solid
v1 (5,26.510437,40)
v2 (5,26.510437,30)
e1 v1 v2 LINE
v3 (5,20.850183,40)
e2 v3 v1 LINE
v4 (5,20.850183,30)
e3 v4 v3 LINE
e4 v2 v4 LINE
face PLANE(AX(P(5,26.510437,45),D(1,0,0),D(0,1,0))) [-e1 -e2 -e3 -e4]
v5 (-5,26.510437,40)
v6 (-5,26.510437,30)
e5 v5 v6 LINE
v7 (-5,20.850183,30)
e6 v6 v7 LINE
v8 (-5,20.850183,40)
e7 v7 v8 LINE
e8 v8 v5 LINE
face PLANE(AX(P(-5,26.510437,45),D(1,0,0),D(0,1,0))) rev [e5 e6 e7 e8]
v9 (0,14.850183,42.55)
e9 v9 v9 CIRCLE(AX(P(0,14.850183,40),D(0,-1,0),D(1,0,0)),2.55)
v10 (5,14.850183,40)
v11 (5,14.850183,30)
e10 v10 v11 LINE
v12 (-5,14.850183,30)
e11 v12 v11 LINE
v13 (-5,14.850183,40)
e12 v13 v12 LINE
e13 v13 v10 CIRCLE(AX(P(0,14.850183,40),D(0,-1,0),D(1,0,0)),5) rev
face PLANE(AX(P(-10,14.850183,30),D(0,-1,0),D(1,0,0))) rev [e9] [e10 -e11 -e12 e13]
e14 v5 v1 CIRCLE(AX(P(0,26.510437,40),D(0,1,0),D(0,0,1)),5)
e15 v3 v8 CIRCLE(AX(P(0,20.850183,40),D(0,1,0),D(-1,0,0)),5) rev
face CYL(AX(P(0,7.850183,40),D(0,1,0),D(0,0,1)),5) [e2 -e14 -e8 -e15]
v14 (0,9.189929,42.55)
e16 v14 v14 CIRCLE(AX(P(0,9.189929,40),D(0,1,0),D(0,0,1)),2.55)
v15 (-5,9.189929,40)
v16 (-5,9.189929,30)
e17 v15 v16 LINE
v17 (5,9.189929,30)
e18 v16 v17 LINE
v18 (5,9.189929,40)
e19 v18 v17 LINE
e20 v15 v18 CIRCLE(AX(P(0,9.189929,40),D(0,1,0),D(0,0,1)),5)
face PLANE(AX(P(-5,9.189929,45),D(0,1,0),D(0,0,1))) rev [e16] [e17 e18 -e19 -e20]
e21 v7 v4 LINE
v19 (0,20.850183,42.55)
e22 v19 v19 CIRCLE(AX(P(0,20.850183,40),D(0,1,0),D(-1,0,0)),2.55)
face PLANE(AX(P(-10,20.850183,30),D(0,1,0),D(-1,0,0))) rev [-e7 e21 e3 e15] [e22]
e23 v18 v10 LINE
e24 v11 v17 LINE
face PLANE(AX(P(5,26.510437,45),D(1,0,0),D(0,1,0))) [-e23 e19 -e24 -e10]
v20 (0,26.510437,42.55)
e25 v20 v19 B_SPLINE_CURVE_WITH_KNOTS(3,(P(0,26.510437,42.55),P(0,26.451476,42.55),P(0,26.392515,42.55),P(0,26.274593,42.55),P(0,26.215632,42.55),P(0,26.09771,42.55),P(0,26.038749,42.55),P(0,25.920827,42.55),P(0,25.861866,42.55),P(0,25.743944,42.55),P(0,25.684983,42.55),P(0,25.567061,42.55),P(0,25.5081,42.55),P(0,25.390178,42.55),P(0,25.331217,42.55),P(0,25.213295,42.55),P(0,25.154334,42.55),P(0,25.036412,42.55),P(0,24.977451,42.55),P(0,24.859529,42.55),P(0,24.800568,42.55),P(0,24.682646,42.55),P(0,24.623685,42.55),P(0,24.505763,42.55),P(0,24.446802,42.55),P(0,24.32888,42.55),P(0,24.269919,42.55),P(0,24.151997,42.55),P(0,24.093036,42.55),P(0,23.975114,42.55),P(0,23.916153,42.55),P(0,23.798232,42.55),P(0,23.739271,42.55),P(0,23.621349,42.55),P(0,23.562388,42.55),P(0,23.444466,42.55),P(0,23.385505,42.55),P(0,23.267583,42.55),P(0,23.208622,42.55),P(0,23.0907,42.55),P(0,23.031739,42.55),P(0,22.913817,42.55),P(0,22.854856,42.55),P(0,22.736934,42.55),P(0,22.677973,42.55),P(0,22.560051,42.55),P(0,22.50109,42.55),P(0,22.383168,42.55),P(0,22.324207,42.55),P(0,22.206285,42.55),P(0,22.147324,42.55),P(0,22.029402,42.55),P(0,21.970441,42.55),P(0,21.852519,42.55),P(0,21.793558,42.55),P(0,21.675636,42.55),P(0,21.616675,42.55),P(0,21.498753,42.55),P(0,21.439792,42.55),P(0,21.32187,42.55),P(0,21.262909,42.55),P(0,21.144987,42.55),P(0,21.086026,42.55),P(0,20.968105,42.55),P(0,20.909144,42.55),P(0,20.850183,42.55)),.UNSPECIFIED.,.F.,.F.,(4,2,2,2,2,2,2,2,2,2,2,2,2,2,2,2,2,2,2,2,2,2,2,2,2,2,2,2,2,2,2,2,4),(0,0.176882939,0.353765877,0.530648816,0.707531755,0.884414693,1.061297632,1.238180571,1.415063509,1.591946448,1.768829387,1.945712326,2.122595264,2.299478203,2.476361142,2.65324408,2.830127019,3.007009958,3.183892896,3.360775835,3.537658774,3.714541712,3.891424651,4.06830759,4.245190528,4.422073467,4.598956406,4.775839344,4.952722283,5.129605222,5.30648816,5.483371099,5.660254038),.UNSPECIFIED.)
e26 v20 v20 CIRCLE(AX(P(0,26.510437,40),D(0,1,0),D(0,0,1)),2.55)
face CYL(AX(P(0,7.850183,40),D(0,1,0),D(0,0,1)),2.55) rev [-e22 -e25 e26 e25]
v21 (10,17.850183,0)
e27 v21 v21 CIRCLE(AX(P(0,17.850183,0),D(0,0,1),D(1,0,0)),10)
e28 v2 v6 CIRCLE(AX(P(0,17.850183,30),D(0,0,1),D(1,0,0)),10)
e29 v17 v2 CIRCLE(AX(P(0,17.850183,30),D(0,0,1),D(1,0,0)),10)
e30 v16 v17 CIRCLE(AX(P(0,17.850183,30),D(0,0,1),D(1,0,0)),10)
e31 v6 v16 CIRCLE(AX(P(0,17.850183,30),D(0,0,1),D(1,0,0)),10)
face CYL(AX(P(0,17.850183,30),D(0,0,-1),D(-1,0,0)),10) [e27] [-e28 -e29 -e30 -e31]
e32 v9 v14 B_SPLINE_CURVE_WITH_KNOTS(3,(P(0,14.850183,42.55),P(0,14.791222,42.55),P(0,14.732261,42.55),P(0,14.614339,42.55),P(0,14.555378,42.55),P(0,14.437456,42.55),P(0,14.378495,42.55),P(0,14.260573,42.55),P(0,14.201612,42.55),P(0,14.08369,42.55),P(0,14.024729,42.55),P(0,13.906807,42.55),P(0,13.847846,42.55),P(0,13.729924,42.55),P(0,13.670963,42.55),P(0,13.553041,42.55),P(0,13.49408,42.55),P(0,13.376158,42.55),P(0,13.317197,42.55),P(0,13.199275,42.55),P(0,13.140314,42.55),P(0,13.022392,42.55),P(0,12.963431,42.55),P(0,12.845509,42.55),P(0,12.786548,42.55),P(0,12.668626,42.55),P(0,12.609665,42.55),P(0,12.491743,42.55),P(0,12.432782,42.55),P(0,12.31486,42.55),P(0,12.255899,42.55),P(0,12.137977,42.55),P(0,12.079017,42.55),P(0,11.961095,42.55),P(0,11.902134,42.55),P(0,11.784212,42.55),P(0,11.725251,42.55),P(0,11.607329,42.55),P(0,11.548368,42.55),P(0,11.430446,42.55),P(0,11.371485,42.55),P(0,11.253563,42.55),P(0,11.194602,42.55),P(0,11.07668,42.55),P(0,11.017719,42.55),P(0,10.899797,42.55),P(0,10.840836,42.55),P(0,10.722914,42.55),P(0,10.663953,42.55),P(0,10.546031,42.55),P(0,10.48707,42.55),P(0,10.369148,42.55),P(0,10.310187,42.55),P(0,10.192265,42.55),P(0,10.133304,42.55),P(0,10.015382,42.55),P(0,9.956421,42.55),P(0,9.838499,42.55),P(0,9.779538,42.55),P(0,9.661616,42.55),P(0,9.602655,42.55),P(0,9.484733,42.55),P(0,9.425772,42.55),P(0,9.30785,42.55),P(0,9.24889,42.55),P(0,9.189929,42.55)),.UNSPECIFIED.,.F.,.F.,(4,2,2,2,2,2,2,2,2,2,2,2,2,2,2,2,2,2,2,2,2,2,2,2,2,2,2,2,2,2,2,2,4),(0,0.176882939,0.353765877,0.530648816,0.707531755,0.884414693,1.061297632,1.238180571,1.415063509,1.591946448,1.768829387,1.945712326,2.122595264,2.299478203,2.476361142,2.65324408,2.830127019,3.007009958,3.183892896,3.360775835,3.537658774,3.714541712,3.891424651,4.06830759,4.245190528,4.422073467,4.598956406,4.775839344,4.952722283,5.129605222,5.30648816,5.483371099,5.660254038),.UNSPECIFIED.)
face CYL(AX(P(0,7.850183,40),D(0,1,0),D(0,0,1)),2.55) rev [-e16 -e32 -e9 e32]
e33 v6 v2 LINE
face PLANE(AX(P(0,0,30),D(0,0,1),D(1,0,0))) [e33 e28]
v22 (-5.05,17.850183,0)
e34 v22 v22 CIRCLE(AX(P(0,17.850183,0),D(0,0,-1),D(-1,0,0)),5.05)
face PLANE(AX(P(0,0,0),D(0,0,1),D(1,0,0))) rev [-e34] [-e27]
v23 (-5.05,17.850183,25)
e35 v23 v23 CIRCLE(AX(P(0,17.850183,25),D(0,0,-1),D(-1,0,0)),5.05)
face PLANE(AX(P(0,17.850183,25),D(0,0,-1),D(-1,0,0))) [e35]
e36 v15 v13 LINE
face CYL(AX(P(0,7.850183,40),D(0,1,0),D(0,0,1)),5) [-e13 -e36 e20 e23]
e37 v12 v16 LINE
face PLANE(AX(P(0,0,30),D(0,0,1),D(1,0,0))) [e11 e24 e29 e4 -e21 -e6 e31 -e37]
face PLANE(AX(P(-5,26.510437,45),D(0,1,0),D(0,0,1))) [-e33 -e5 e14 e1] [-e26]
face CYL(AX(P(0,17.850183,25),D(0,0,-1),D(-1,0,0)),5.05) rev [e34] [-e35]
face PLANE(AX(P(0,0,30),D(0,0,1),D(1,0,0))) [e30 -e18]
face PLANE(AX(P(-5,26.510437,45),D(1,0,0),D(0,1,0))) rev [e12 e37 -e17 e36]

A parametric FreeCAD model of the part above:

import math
import FreeCAD as App
import Part
import Sketcher
from FreeCAD import Vector

doc = App.newDocument("Part")
body = doc.addObject("PartDesign::Body", "Body")

# Sketch on XY plane
sketch1 = body.newObject("Sketcher::SketchObject", "Sketch")
sketch1.AttachmentSupport = (doc.getObject("XY_Plane"), [""])
sketch1.MapMode = "FlatFace"
sketch1.addGeometry(Part.Circle(Vector(0, 17.850183, 0), Vector(0, 0, 1), 10), False)
sketch1.addConstraint([
    Sketcher.Constraint("PointOnObject", 0, 3, -2),
    Sketcher.Constraint("Diameter", 0, 20.0),
    Sketcher.Constraint("DistanceY", -1, 1, 0, 3, 17.850183),
])
pad1 = body.newObject("PartDesign::Pad", "Pad")
pad1.Profile = sketch1
pad1.Length = 30

# Sketch on XY plane
sketch2 = body.newObject("Sketcher::SketchObject", "Sketch001")
sketch2.AttachmentSupport = (doc.getObject("XY_Plane"), [""])
sketch2.MapMode = "FlatFace"
sketch2.AttachmentOffset = App.Placement(Vector(0, 0, 30), App.Rotation())
sketch2.addGeometry([
    Part.LineSegment(Vector(-5, 26.510437, 0), Vector(-5, 9.189929, 0)),
    Part.LineSegment(Vector(-5, 9.189929, 0), Vector(5, 9.189929, 0)),
    Part.LineSegment(Vector(5, 9.189929, 0), Vector(5, 26.510437, 0)),
    Part.LineSegment(Vector(5, 26.510437, 0), Vector(-5, 26.510437, 0)),
], False)
sketch2.addConstraint([
    Sketcher.Constraint("Coincident", 0, 2, 1, 1),
    Sketcher.Constraint("Coincident", 1, 2, 2, 1),
    Sketcher.Constraint("Coincident", 2, 2, 3, 1),
    Sketcher.Constraint("Coincident", 3, 2, 0, 1),
    Sketcher.Constraint("Vertical", 0),
    Sketcher.Constraint("Horizontal", 1),
    Sketcher.Constraint("Vertical", 2),
    Sketcher.Constraint("Horizontal", 3),
    Sketcher.Constraint("DistanceX", 1, 1, 1, 2, 10.0),
    Sketcher.Constraint("DistanceX", 0, 2, -1, 1, 5.0),
    Sketcher.Constraint("DistanceY", 0, 2, 0, 1, 17.320508),
    Sketcher.Constraint("DistanceY", -1, 1, 0, 2, 9.189929),
])
pad2 = body.newObject("PartDesign::Pad", "Pad001")
pad2.Profile = sketch2
pad2.Length = 15

# Sketch on XZ plane
sketch3 = body.newObject("Sketcher::SketchObject", "Sketch002")
sketch3.AttachmentSupport = (doc.getObject("XZ_Plane"), [""])
sketch3.MapMode = "FlatFace"
sketch3.AttachmentOffset = App.Placement(Vector(0, 0, -26.510437), App.Rotation())
sketch3.addGeometry([
    Part.LineSegment(Vector(5, 45, 0), Vector(5, 40, 0)),
    Part.ArcOfCircle(Part.Circle(Vector(0, 40, 0), Vector(0, 0, 1), 5), math.radians(0), math.radians(90)),
    Part.LineSegment(Vector(0, 45, 0), Vector(5, 45, 0)),
], False)
sketch3.addConstraint([
    Sketcher.Constraint("Tangent", 0, 2, 1, 1),
    Sketcher.Constraint("Tangent", 1, 2, 2, 1),
    Sketcher.Constraint("Coincident", 2, 2, 0, 1),
    Sketcher.Constraint("Vertical", 0),
    Sketcher.Constraint("Horizontal", 2),
    Sketcher.Constraint("PointOnObject", 1, 3, -2),
    Sketcher.Constraint("Radius", 1, 5.0),
    Sketcher.Constraint("DistanceY", -1, 1, 1, 3, 40.0),
])
pocket1 = body.newObject("PartDesign::Pocket", "Pocket")
pocket1.Profile = sketch3
pocket1.Type = "ThroughAll"
pocket1.Reversed = True

# Sketch on XZ plane
sketch4 = body.newObject("Sketcher::SketchObject", "Sketch003")
sketch4.AttachmentSupport = (doc.getObject("XZ_Plane"), [""])
sketch4.MapMode = "FlatFace"
sketch4.AttachmentOffset = App.Placement(Vector(0, 0, -26.510437), App.Rotation())
sketch4.addGeometry([
    Part.ArcOfCircle(Part.Circle(Vector(0, 40, 0), Vector(0, 0, 1), 5), math.radians(90), math.radians(180)),
    Part.LineSegment(Vector(-5, 40, 0), Vector(-5, 45, 0)),
    Part.LineSegment(Vector(-5, 45, 0), Vector(0, 45, 0)),
], False)
sketch4.addConstraint([
    Sketcher.Constraint("Tangent", 0, 2, 1, 1),
    Sketcher.Constraint("Coincident", 1, 2, 2, 1),
    Sketcher.Constraint("Tangent", 2, 2, 0, 1),
    Sketcher.Constraint("Vertical", 1),
    Sketcher.Constraint("Horizontal", 2),
    Sketcher.Constraint("PointOnObject", 0, 3, -2),
    Sketcher.Constraint("Radius", 0, 5.0),
    Sketcher.Constraint("DistanceY", -1, 1, 0, 3, 40.0),
])
pocket2 = body.newObject("PartDesign::Pocket", "Pocket001")
pocket2.Profile = sketch4
pocket2.Type = "ThroughAll"
pocket2.Reversed = True

# Sketch on YZ plane
sketch5 = body.newObject("Sketcher::SketchObject", "Sketch004")
sketch5.AttachmentSupport = (doc.getObject("YZ_Plane"), [""])
sketch5.MapMode = "FlatFace"
sketch5.AttachmentOffset = App.Placement(Vector(0, 0, 5), App.Rotation())
sketch5.addGeometry([
    Part.LineSegment(Vector(14.850183, 47.355992, 0), Vector(14.850183, 30, 0)),
    Part.LineSegment(Vector(14.850183, 30, 0), Vector(20.850183, 30, 0)),
    Part.LineSegment(Vector(20.850183, 30, 0), Vector(20.850183, 47.355992, 0)),
    Part.LineSegment(Vector(20.850183, 47.355992, 0), Vector(14.850183, 47.355992, 0)),
], False)
sketch5.addConstraint([
    Sketcher.Constraint("Coincident", 0, 2, 1, 1),
    Sketcher.Constraint("Coincident", 1, 2, 2, 1),
    Sketcher.Constraint("Coincident", 2, 2, 3, 1),
    Sketcher.Constraint("Coincident", 3, 2, 0, 1),
    Sketcher.Constraint("Vertical", 0),
    Sketcher.Constraint("Horizontal", 1),
    Sketcher.Constraint("Vertical", 2),
    Sketcher.Constraint("Horizontal", 3),
    Sketcher.Constraint("DistanceX", 1, 1, 1, 2, 6.0),
    Sketcher.Constraint("DistanceY", -1, 1, 0, 2, 30.0),
    Sketcher.Constraint("DistanceY", 0, 2, 0, 1, 17.355992),
    Sketcher.Constraint("DistanceX", -1, 1, 0, 2, 14.850183),
])
pocket3 = body.newObject("PartDesign::Pocket", "Pocket002")
pocket3.Profile = sketch5
pocket3.Length = 15

# Sketch on XZ plane
sketch6 = body.newObject("Sketcher::SketchObject", "Sketch005")
sketch6.AttachmentSupport = (doc.getObject("XZ_Plane"), [""])
sketch6.MapMode = "FlatFace"
sketch6.AttachmentOffset = App.Placement(Vector(0, 0, -26.510437), App.Rotation())
sketch6.addGeometry(Part.Circle(Vector(0, 40, 0), Vector(0, 0, 1), 2.55), False)
sketch6.addConstraint([
    Sketcher.Constraint("PointOnObject", 0, 3, -2),
    Sketcher.Constraint("Diameter", 0, 5.1),
    Sketcher.Constraint("DistanceY", -1, 1, 0, 3, 40.0),
])
pocket4 = body.newObject("PartDesign::Pocket", "Pocket003")
pocket4.Profile = sketch6
pocket4.Type = "ThroughAll"
pocket4.Reversed = True

# Sketch on XY plane
sketch7 = body.newObject("Sketcher::SketchObject", "Sketch006")
sketch7.AttachmentSupport = (doc.getObject("XY_Plane"), [""])
sketch7.MapMode = "FlatFace"
sketch7.addGeometry(Part.Circle(Vector(0, 17.850183, 0), Vector(0, 0, 1), 5.05), False)
sketch7.addConstraint([
    Sketcher.Constraint("PointOnObject", 0, 3, -2),
    Sketcher.Constraint("Diameter", 0, 10.1),
    Sketcher.Constraint("DistanceY", -1, 1, 0, 3, 17.850183),
])
pocket5 = body.newObject("PartDesign::Pocket", "Pocket004")
pocket5.Profile = sketch7
pocket5.Length = 25
pocket5.Reversed = True

doc.recompute()
